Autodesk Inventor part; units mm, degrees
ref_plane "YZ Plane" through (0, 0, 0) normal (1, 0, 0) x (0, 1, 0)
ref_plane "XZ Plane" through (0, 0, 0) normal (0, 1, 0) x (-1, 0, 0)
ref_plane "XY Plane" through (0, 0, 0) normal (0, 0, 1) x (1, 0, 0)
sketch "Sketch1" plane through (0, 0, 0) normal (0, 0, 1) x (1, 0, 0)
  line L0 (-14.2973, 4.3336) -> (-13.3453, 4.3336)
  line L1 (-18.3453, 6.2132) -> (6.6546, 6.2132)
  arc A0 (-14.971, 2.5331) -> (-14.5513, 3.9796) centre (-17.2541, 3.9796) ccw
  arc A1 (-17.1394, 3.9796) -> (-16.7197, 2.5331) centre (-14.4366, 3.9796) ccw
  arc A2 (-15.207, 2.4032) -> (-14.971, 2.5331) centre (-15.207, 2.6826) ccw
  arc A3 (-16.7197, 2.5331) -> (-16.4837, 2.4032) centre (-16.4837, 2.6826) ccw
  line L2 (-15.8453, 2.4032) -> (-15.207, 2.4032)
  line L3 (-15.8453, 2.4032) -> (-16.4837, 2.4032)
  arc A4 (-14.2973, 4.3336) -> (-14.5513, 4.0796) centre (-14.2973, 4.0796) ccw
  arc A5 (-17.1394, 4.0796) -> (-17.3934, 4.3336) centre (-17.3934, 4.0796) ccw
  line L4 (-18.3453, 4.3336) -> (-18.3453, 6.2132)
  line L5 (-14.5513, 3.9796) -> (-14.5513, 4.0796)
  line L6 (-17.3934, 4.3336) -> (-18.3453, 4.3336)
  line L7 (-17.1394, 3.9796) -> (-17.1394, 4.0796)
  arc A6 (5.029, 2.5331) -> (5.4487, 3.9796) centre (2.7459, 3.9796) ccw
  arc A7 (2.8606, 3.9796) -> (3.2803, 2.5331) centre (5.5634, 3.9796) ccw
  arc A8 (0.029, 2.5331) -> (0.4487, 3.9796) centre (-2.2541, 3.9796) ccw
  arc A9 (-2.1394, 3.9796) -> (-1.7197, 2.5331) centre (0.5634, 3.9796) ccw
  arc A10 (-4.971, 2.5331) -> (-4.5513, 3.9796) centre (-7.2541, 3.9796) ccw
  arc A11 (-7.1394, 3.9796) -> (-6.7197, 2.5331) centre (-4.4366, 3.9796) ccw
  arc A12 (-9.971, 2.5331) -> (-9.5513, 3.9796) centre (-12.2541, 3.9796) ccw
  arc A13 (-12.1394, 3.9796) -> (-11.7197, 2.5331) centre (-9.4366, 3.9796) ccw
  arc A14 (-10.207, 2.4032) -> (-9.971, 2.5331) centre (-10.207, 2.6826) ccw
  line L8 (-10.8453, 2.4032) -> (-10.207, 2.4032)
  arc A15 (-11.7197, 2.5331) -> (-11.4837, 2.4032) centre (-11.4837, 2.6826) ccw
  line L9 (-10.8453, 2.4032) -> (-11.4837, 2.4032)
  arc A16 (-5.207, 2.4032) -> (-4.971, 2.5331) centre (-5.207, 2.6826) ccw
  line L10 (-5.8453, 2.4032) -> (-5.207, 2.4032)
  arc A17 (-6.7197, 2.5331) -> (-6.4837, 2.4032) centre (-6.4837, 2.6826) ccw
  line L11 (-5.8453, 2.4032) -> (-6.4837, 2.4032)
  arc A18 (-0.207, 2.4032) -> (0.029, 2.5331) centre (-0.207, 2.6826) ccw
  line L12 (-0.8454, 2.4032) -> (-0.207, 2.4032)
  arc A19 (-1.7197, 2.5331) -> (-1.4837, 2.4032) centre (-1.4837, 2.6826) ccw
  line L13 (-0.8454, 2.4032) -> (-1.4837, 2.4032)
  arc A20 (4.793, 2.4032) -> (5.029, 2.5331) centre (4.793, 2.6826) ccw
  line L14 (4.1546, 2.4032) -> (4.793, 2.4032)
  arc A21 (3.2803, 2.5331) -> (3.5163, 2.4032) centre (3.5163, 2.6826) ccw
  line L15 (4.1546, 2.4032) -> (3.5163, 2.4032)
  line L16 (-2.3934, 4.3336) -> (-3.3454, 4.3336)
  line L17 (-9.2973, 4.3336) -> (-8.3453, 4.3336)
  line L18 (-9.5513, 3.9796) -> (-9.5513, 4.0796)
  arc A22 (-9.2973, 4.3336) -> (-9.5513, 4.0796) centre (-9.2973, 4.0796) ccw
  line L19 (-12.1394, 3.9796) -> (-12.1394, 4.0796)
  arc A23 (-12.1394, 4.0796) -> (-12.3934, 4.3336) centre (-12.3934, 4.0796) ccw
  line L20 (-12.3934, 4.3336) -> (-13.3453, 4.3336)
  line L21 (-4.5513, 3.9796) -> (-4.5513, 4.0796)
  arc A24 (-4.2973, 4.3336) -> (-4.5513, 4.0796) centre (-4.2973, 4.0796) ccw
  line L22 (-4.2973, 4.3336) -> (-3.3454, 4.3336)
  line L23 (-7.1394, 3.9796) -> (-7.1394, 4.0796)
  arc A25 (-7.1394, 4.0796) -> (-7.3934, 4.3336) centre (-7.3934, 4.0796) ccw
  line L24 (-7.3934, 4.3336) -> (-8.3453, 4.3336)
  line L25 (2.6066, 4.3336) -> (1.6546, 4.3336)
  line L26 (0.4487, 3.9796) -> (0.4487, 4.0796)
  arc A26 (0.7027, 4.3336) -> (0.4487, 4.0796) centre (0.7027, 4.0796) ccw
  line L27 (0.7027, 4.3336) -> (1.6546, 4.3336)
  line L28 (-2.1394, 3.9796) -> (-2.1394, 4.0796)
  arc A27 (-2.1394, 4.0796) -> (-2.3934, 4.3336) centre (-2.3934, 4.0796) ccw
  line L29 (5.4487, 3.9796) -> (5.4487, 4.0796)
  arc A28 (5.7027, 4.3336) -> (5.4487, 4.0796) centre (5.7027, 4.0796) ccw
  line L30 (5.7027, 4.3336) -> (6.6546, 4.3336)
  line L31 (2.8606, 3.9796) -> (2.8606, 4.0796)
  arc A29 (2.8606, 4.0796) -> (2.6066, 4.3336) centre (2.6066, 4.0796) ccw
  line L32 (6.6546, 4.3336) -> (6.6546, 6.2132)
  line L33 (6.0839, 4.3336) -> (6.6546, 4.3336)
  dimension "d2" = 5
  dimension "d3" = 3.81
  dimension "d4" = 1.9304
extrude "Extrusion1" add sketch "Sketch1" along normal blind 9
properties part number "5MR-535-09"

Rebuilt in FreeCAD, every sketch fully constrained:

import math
import FreeCAD as App
import Part
import Sketcher

V = App.Vector
Q = App.Units.Quantity

doc = App.newDocument("Part")
body = doc.addObject("PartDesign::Body", "Body")

# Sketch on XY plane
sketch1 = doc.addObject("Sketcher::SketchObject", "Sketch")
body.addObject(sketch1)
sketch1.AttachmentSupport = (doc.XY_Plane, [""])
sketch1.MapMode = "FlatFace"
sketch1.addGeometry(Part.ArcOfCircle(Part.Circle(V(-14.3, 4.08, 0), V(0, 0, 1), 0.25), math.radians(90), math.radians(180)), False)
sketch1.addGeometry(Part.LineSegment(V(-14.3, 4.33, 0), V(-12.39, 4.33, 0)), False)
sketch1.addGeometry(Part.ArcOfCircle(Part.Circle(V(-12.39, 4.08, 0), V(0, 0, 1), 0.25), math.radians(0), math.radians(90)), False)
sketch1.addGeometry(Part.LineSegment(V(-12.14, 4.08, 0), V(-12.14, 3.98, 0)), False)
sketch1.addGeometry(Part.ArcOfCircle(Part.Circle(V(-9.44, 3.98, 0), V(0, 0, 1), 2.7), math.radians(180), math.radians(212)), False)
sketch1.addGeometry(Part.ArcOfCircle(Part.Circle(V(-11.48, 2.68, 0), V(0, 0, 1), 0.28), math.radians(-148), math.radians(-90)), False)
sketch1.addGeometry(Part.LineSegment(V(-11.48, 2.4, 0), V(-10.21, 2.4, 0)), False)
sketch1.addGeometry(Part.ArcOfCircle(Part.Circle(V(-10.21, 2.68, 0), V(0, 0, 1), 0.28), math.radians(-90), math.radians(-32)), False)
sketch1.addGeometry(Part.ArcOfCircle(Part.Circle(V(-12.25, 3.98, 0), V(0, 0, 1), 2.7), math.radians(-32), math.radians(0)), False)
sketch1.addGeometry(Part.LineSegment(V(-9.55, 3.98, 0), V(-9.55, 4.08, 0)), False)
sketch1.addGeometry(Part.ArcOfCircle(Part.Circle(V(-9.3, 4.08, 0), V(0, 0, 1), 0.25), math.radians(90), math.radians(180)), False)
sketch1.addGeometry(Part.LineSegment(V(-9.3, 4.33, 0), V(-7.39, 4.33, 0)), False)
sketch1.addGeometry(Part.ArcOfCircle(Part.Circle(V(-7.39, 4.08, 0), V(0, 0, 1), 0.25), math.radians(0), math.radians(90)), False)
sketch1.addGeometry(Part.LineSegment(V(-7.14, 4.08, 0), V(-7.14, 3.98, 0)), False)
sketch1.addGeometry(Part.ArcOfCircle(Part.Circle(V(-4.44, 3.98, 0), V(0, 0, 1), 2.7), math.radians(180), math.radians(212)), False)
sketch1.addGeometry(Part.ArcOfCircle(Part.Circle(V(-6.48, 2.68, 0), V(0, 0, 1), 0.28), math.radians(-148), math.radians(-90)), False)
sketch1.addGeometry(Part.LineSegment(V(-6.48, 2.4, 0), V(-5.21, 2.4, 0)), False)
sketch1.addGeometry(Part.ArcOfCircle(Part.Circle(V(-5.21, 2.68, 0), V(0, 0, 1), 0.28), math.radians(-90), math.radians(-32)), False)
sketch1.addGeometry(Part.ArcOfCircle(Part.Circle(V(-7.25, 3.98, 0), V(0, 0, 1), 2.7), math.radians(-32), math.radians(0)), False)
sketch1.addGeometry(Part.LineSegment(V(-4.55, 3.98, 0), V(-4.55, 4.08, 0)), False)
sketch1.addGeometry(Part.ArcOfCircle(Part.Circle(V(-4.3, 4.08, 0), V(0, 0, 1), 0.25), math.radians(90), math.radians(180)), False)
sketch1.addGeometry(Part.LineSegment(V(-4.3, 4.33, 0), V(-2.39, 4.33, 0)), False)
sketch1.addGeometry(Part.ArcOfCircle(Part.Circle(V(-2.39, 4.08, 0), V(0, 0, 1), 0.25), math.radians(0), math.radians(90)), False)
sketch1.addGeometry(Part.LineSegment(V(-2.14, 4.08, 0), V(-2.14, 3.98, 0)), False)
sketch1.addGeometry(Part.ArcOfCircle(Part.Circle(V(0.56, 3.98, 0), V(0, 0, 1), 2.7), math.radians(180), math.radians(212)), False)
sketch1.addGeometry(Part.ArcOfCircle(Part.Circle(V(-1.48, 2.68, 0), V(0, 0, 1), 0.28), math.radians(-148), math.radians(-90)), False)
sketch1.addGeometry(Part.LineSegment(V(-1.48, 2.4, 0), V(-0.21, 2.4, 0)), False)
sketch1.addGeometry(Part.ArcOfCircle(Part.Circle(V(-0.21, 2.68, 0), V(0, 0, 1), 0.28), math.radians(-90), math.radians(-32)), False)
sketch1.addGeometry(Part.ArcOfCircle(Part.Circle(V(-2.25, 3.98, 0), V(0, 0, 1), 2.7), math.radians(-32), math.radians(0)), False)
sketch1.addGeometry(Part.LineSegment(V(0.45, 3.98, 0), V(0.45, 4.08, 0)), False)
sketch1.addGeometry(Part.ArcOfCircle(Part.Circle(V(0.7, 4.08, 0), V(0, 0, 1), 0.25), math.radians(90), math.radians(180)), False)
sketch1.addGeometry(Part.LineSegment(V(0.7, 4.33, 0), V(2.61, 4.33, 0)), False)
sketch1.addGeometry(Part.ArcOfCircle(Part.Circle(V(2.61, 4.08, 0), V(0, 0, 1), 0.25), math.radians(0), math.radians(90)), False)
sketch1.addGeometry(Part.LineSegment(V(2.86, 4.08, 0), V(2.86, 3.98, 0)), False)
sketch1.addGeometry(Part.ArcOfCircle(Part.Circle(V(5.56, 3.98, 0), V(0, 0, 1), 2.7), math.radians(180), math.radians(212)), False)
sketch1.addGeometry(Part.ArcOfCircle(Part.Circle(V(3.52, 2.68, 0), V(0, 0, 1), 0.28), math.radians(-148), math.radians(-90)), False)
sketch1.addGeometry(Part.LineSegment(V(3.52, 2.4, 0), V(4.79, 2.4, 0)), False)
sketch1.addGeometry(Part.ArcOfCircle(Part.Circle(V(4.79, 2.68, 0), V(0, 0, 1), 0.28), math.radians(-90), math.radians(-32)), False)
sketch1.addGeometry(Part.ArcOfCircle(Part.Circle(V(2.75, 3.98, 0), V(0, 0, 1), 2.7), math.radians(-32), math.radians(0)), False)
sketch1.addGeometry(Part.LineSegment(V(5.45, 3.98, 0), V(5.45, 4.08, 0)), False)
sketch1.addGeometry(Part.ArcOfCircle(Part.Circle(V(5.7, 4.08, 0), V(0, 0, 1), 0.25), math.radians(90), math.radians(180)), False)
sketch1.addGeometry(Part.LineSegment(V(5.7, 4.33, 0), V(6.65, 4.33, 0)), False)
sketch1.addGeometry(Part.LineSegment(V(6.65, 4.33, 0), V(6.65, 6.21, 0)), False)
sketch1.addGeometry(Part.LineSegment(V(6.65, 6.21, 0), V(-18.35, 6.21, 0)), False)
sketch1.addGeometry(Part.LineSegment(V(-18.35, 6.21, 0), V(-18.35, 4.33, 0)), False)
sketch1.addGeometry(Part.LineSegment(V(-18.35, 4.33, 0), V(-17.39, 4.33, 0)), False)
sketch1.addGeometry(Part.ArcOfCircle(Part.Circle(V(-17.39, 4.08, 0), V(0, 0, 1), 0.25), math.radians(0), math.radians(90)), False)
sketch1.addGeometry(Part.LineSegment(V(-17.14, 4.08, 0), V(-17.14, 3.98, 0)), False)
sketch1.addGeometry(Part.ArcOfCircle(Part.Circle(V(-14.44, 3.98, 0), V(0, 0, 1), 2.7), math.radians(180), math.radians(212)), False)
sketch1.addGeometry(Part.ArcOfCircle(Part.Circle(V(-16.48, 2.68, 0), V(0, 0, 1), 0.28), math.radians(-148), math.radians(-90)), False)
sketch1.addGeometry(Part.LineSegment(V(-16.48, 2.4, 0), V(-15.21, 2.4, 0)), False)
sketch1.addGeometry(Part.ArcOfCircle(Part.Circle(V(-15.21, 2.68, 0), V(0, 0, 1), 0.28), math.radians(-90), math.radians(-32)), False)
sketch1.addGeometry(Part.ArcOfCircle(Part.Circle(V(-17.25, 3.98, 0), V(0, 0, 1), 2.7), math.radians(-32), math.radians(0)), False)
sketch1.addGeometry(Part.LineSegment(V(-14.55, 3.98, 0), V(-14.55, 4.08, 0)), False)
sketch1.addConstraint(Sketcher.Constraint("Tangent", 0, 1, 1, 1))
sketch1.addConstraint(Sketcher.Constraint("Tangent", 1, 2, 2, 2))
sketch1.addConstraint(Sketcher.Constraint("Tangent", 2, 1, 3, 1))
sketch1.addConstraint(Sketcher.Constraint("Tangent", 3, 2, 4, 1))
sketch1.addConstraint(Sketcher.Constraint("Tangent", 4, 2, 5, 1))
sketch1.addConstraint(Sketcher.Constraint("Tangent", 5, 2, 6, 1))
sketch1.addConstraint(Sketcher.Constraint("Tangent", 6, 2, 7, 1))
sketch1.addConstraint(Sketcher.Constraint("Tangent", 7, 2, 8, 1))
sketch1.addConstraint(Sketcher.Constraint("Tangent", 8, 2, 9, 1))
sketch1.addConstraint(Sketcher.Constraint("Tangent", 9, 2, 10, 2))
sketch1.addConstraint(Sketcher.Constraint("Tangent", 10, 1, 11, 1))
sketch1.addConstraint(Sketcher.Constraint("Tangent", 11, 2, 12, 2))
sketch1.addConstraint(Sketcher.Constraint("Tangent", 12, 1, 13, 1))
sketch1.addConstraint(Sketcher.Constraint("Tangent", 13, 2, 14, 1))
sketch1.addConstraint(Sketcher.Constraint("Tangent", 14, 2, 15, 1))
sketch1.addConstraint(Sketcher.Constraint("Tangent", 15, 2, 16, 1))
sketch1.addConstraint(Sketcher.Constraint("Tangent", 16, 2, 17, 1))
sketch1.addConstraint(Sketcher.Constraint("Tangent", 17, 2, 18, 1))
sketch1.addConstraint(Sketcher.Constraint("Tangent", 18, 2, 19, 1))
sketch1.addConstraint(Sketcher.Constraint("Tangent", 19, 2, 20, 2))
sketch1.addConstraint(Sketcher.Constraint("Tangent", 20, 1, 21, 1))
sketch1.addConstraint(Sketcher.Constraint("Tangent", 21, 2, 22, 2))
sketch1.addConstraint(Sketcher.Constraint("Tangent", 22, 1, 23, 1))
sketch1.addConstraint(Sketcher.Constraint("Tangent", 23, 2, 24, 1))
sketch1.addConstraint(Sketcher.Constraint("Tangent", 24, 2, 25, 1))
sketch1.addConstraint(Sketcher.Constraint("Tangent", 25, 2, 26, 1))
sketch1.addConstraint(Sketcher.Constraint("Tangent", 26, 2, 27, 1))
sketch1.addConstraint(Sketcher.Constraint("Tangent", 27, 2, 28, 1))
sketch1.addConstraint(Sketcher.Constraint("Tangent", 28, 2, 29, 1))
sketch1.addConstraint(Sketcher.Constraint("Tangent", 29, 2, 30, 2))
sketch1.addConstraint(Sketcher.Constraint("Tangent", 30, 1, 31, 1))
sketch1.addConstraint(Sketcher.Constraint("Tangent", 31, 2, 32, 2))
sketch1.addConstraint(Sketcher.Constraint("Tangent", 32, 1, 33, 1))
sketch1.addConstraint(Sketcher.Constraint("Tangent", 33, 2, 34, 1))
sketch1.addConstraint(Sketcher.Constraint("Tangent", 34, 2, 35, 1))
sketch1.addConstraint(Sketcher.Constraint("Tangent", 35, 2, 36, 1))
sketch1.addConstraint(Sketcher.Constraint("Tangent", 36, 2, 37, 1))
sketch1.addConstraint(Sketcher.Constraint("Tangent", 37, 2, 38, 1))
sketch1.addConstraint(Sketcher.Constraint("Tangent", 38, 2, 39, 1))
sketch1.addConstraint(Sketcher.Constraint("Tangent", 39, 2, 40, 2))
sketch1.addConstraint(Sketcher.Constraint("Tangent", 40, 1, 41, 1))
sketch1.addConstraint(Sketcher.Constraint("Coincident", 41, 2, 42, 1))
sketch1.addConstraint(Sketcher.Constraint("Coincident", 42, 2, 43, 1))
sketch1.addConstraint(Sketcher.Constraint("Coincident", 43, 2, 44, 1))
sketch1.addConstraint(Sketcher.Constraint("Coincident", 44, 2, 45, 1))
sketch1.addConstraint(Sketcher.Constraint("Tangent", 45, 2, 46, 2))
sketch1.addConstraint(Sketcher.Constraint("Tangent", 46, 1, 47, 1))
sketch1.addConstraint(Sketcher.Constraint("Tangent", 47, 2, 48, 1))
sketch1.addConstraint(Sketcher.Constraint("Tangent", 48, 2, 49, 1))
sketch1.addConstraint(Sketcher.Constraint("Tangent", 49, 2, 50, 1))
sketch1.addConstraint(Sketcher.Constraint("Tangent", 50, 2, 51, 1))
sketch1.addConstraint(Sketcher.Constraint("Tangent", 51, 2, 52, 1))
sketch1.addConstraint(Sketcher.Constraint("Tangent", 52, 2, 53, 1))
sketch1.addConstraint(Sketcher.Constraint("Tangent", 53, 2, 0, 2))
sketch1.addConstraint(Sketcher.Constraint("Horizontal", 1))
sketch1.addConstraint(Sketcher.Constraint("Vertical", 3))
sketch1.addConstraint(Sketcher.Constraint("Horizontal", 6))
sketch1.addConstraint(Sketcher.Constraint("Vertical", 9))
sketch1.addConstraint(Sketcher.Constraint("Horizontal", 11))
sketch1.addConstraint(Sketcher.Constraint("Vertical", 13))
sketch1.addConstraint(Sketcher.Constraint("Horizontal", 16))
sketch1.addConstraint(Sketcher.Constraint("Vertical", 19))
sketch1.addConstraint(Sketcher.Constraint("Horizontal", 21))
sketch1.addConstraint(Sketcher.Constraint("Vertical", 23))
sketch1.addConstraint(Sketcher.Constraint("Horizontal", 26))
sketch1.addConstraint(Sketcher.Constraint("Vertical", 29))
sketch1.addConstraint(Sketcher.Constraint("Horizontal", 31))
sketch1.addConstraint(Sketcher.Constraint("Vertical", 33))
sketch1.addConstraint(Sketcher.Constraint("Horizontal", 36))
sketch1.addConstraint(Sketcher.Constraint("Vertical", 39))
sketch1.addConstraint(Sketcher.Constraint("Horizontal", 41))
sketch1.addConstraint(Sketcher.Constraint("Vertical", 42))
sketch1.addConstraint(Sketcher.Constraint("Horizontal", 43))
sketch1.addConstraint(Sketcher.Constraint("Vertical", 44))
sketch1.addConstraint(Sketcher.Constraint("Horizontal", 45))
sketch1.addConstraint(Sketcher.Constraint("Vertical", 47))
sketch1.addConstraint(Sketcher.Constraint("Horizontal", 50))
sketch1.addConstraint(Sketcher.Constraint("Vertical", 53))
sketch1.addConstraint(Sketcher.Constraint("Equal", 0, 2))
sketch1.addConstraint(Sketcher.Constraint("Equal", 5, 7))
sketch1.addConstraint(Sketcher.Constraint("Equal", 4, 8))
sketch1.addConstraint(Sketcher.Constraint("Equal", 2, 10))
sketch1.addConstraint(Sketcher.Constraint("Equal", 10, 12))
sketch1.addConstraint(Sketcher.Constraint("Equal", 8, 14))
sketch1.addConstraint(Sketcher.Constraint("Equal", 7, 15))
sketch1.addConstraint(Sketcher.Constraint("Equal", 15, 17))
sketch1.addConstraint(Sketcher.Constraint("Equal", 14, 18))
sketch1.addConstraint(Sketcher.Constraint("Equal", 12, 20))
sketch1.addConstraint(Sketcher.Constraint("Equal", 20, 22))
sketch1.addConstraint(Sketcher.Constraint("Equal", 18, 24))
sketch1.addConstraint(Sketcher.Constraint("Equal", 17, 25))
sketch1.addConstraint(Sketcher.Constraint("Equal", 25, 27))
sketch1.addConstraint(Sketcher.Constraint("Equal", 24, 28))
sketch1.addConstraint(Sketcher.Constraint("Equal", 22, 30))
sketch1.addConstraint(Sketcher.Constraint("Equal", 30, 32))
sketch1.addConstraint(Sketcher.Constraint("Equal", 28, 34))
sketch1.addConstraint(Sketcher.Constraint("Equal", 27, 35))
sketch1.addConstraint(Sketcher.Constraint("Equal", 35, 37))
sketch1.addConstraint(Sketcher.Constraint("Equal", 34, 38))
sketch1.addConstraint(Sketcher.Constraint("Equal", 32, 40))
sketch1.addConstraint(Sketcher.Constraint("Equal", 40, 46))
sketch1.addConstraint(Sketcher.Constraint("Equal", 38, 48))
sketch1.addConstraint(Sketcher.Constraint("Equal", 37, 49))
sketch1.addConstraint(Sketcher.Constraint("Equal", 49, 51))
sketch1.addConstraint(Sketcher.Constraint("Equal", 48, 52))
sketch1.addConstraint(Sketcher.Constraint("Horizontal", 4, 3, 8, 3))
sketch1.addConstraint(Sketcher.Constraint("Horizontal", 2, 3, 10, 3))
sketch1.addConstraint(Sketcher.Constraint("Horizontal", 8, 3, 14, 3))
sketch1.addConstraint(Sketcher.Constraint("Horizontal", 7, 3, 15, 3))
sketch1.addConstraint(Sketcher.Constraint("Horizontal", 14, 3, 18, 3))
sketch1.addConstraint(Sketcher.Constraint("Horizontal", 12, 3, 20, 3))
sketch1.addConstraint(Sketcher.Constraint("Horizontal", 18, 3, 24, 3))
sketch1.addConstraint(Sketcher.Constraint("Horizontal", 17, 3, 25, 3))
sketch1.addConstraint(Sketcher.Constraint("Horizontal", 24, 3, 28, 3))
sketch1.addConstraint(Sketcher.Constraint("Horizontal", 22, 3, 30, 3))
sketch1.addConstraint(Sketcher.Constraint("Horizontal", 28, 3, 34, 3))
sketch1.addConstraint(Sketcher.Constraint("Horizontal", 27, 3, 35, 3))
sketch1.addConstraint(Sketcher.Constraint("Horizontal", 34, 3, 38, 3))
sketch1.addConstraint(Sketcher.Constraint("Horizontal", 32, 3, 40, 3))
sketch1.addConstraint(Sketcher.Constraint("Horizontal", 40, 3, 46, 3))
sketch1.addConstraint(Sketcher.Constraint("Horizontal", 38, 3, 48, 3))
sketch1.addConstraint(Sketcher.Constraint("Horizontal", 37, 3, 49, 3))
sketch1.addConstraint(Sketcher.Constraint("Horizontal", 48, 3, 52, 3))
sketch1.addConstraint(Sketcher.Constraint("Equal", 1, 11))
sketch1.addConstraint(Sketcher.Constraint("Equal", 6, 16))
sketch1.addConstraint(Sketcher.Constraint("Equal", 11, 21))
sketch1.addConstraint(Sketcher.Constraint("Equal", 16, 26))
sketch1.addConstraint(Sketcher.Constraint("Equal", 21, 31))
sketch1.addConstraint(Sketcher.Constraint("Equal", 26, 36))
sketch1.addConstraint(Sketcher.Constraint("Equal", 41, 45))
sketch1.addConstraint(Sketcher.Constraint("Equal", 36, 50))
sketch1.addConstraint(Sketcher.Constraint("Radius", 0, Q("0.01 in")))
sketch1.addConstraint(Sketcher.Constraint("Radius", 5, Q("0.011 in")))
sketch1.addConstraint(Sketcher.Constraint("Radius", 4, Q("0.1064 in")))
sketch1.addConstraint(Sketcher.Constraint("DistanceY", 42, 1, 42, 2, Q("0.074 in")))
sketch1.addConstraint(Sketcher.Constraint("DistanceX", 17, 3, -1, 1, Q("0.205 in")))
sketch1.addConstraint(Sketcher.Constraint("DistanceX", -1, 1, 37, 2, Q("0.198 in")))
sketch1.addConstraint(Sketcher.Constraint("DistanceX", -1, 1, 41, 2, Q("0.262 in")))
sketch1.addConstraint(Sketcher.Constraint("DistanceX", 1, 1, 1, 2, Q("1.904 mm")))
sketch1.addConstraint(Sketcher.Constraint("DistanceX", 6, 1, 6, 2, Q("1.2767 mm")))
sketch1.addConstraint(Sketcher.Constraint("DistanceY", 3, 2, 3, 1, Q("0.1 mm")))
sketch1.addConstraint(Sketcher.Constraint("DistanceY", -1, 1, 0, 3, Q("4.0796 mm")))
pad1 = doc.addObject("PartDesign::Pad", "Pad")
body.addObject(pad1)
pad1.Profile = sketch1
pad1.Length = 9

doc.recompute()
